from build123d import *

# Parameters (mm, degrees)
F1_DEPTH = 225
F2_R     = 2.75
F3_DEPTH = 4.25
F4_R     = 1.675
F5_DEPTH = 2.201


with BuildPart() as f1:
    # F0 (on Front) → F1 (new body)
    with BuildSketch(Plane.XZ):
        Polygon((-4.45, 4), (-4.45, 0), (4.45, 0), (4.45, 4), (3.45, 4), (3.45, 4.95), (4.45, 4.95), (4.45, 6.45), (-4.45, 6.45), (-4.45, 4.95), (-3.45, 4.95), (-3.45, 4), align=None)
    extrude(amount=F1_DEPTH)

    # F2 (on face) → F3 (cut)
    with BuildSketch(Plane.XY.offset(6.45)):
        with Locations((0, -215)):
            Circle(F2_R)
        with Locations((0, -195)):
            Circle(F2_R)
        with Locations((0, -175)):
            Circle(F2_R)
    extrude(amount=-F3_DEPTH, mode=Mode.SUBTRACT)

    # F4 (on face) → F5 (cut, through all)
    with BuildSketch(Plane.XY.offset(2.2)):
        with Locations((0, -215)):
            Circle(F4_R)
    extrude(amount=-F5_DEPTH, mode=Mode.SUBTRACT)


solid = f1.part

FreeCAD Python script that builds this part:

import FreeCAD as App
import Part
import Sketcher
from FreeCAD import Vector
Q = App.Units.Quantity


def add_polygon(sketch, points):
    """Adds a closed chain of lines whose ends are joined by coincident constraints."""
    first, n = sketch.GeometryCount, len(points)
    for a, b in zip(points, points[1:] + points[:1]):
        sketch.addGeometry(Part.LineSegment(App.Vector(*a, 0), App.Vector(*b, 0)), False)
    for i in range(n):
        sketch.addConstraint(Sketcher.Constraint("Coincident", first + i, 2, first + (i + 1) % n, 1))

doc = App.newDocument("Part")
body = doc.addObject("PartDesign::Body", "Body")

# Sketch on XZ plane
sketch1 = body.newObject("Sketcher::SketchObject", "Sketch")
sketch1.AttachmentSupport = (doc.getObject("XZ_Plane"), [""])
sketch1.MapMode = "FlatFace"
add_polygon(sketch1, [(-4.5, 4), (-4.5, 0), (4.5, 0), (4.5, 4), (3.5, 4), (3.5, 5), (4.5, 5), (4.5, 6.5), (-4.5, 6.5), (-4.5, 5), (-3.5, 5), (-3.5, 4)])  # lines 0-11
sketch1.addConstraint([
    Sketcher.Constraint("Vertical", 0),
    Sketcher.Constraint("Horizontal", 1),
    Sketcher.Constraint("Vertical", 2),
    Sketcher.Constraint("Horizontal", 3),
    Sketcher.Constraint("Vertical", 4),
    Sketcher.Constraint("Horizontal", 5),
    Sketcher.Constraint("Vertical", 6),
    Sketcher.Constraint("Horizontal", 7),
    Sketcher.Constraint("Vertical", 8),
    Sketcher.Constraint("Horizontal", 9),
    Sketcher.Constraint("Vertical", 10),
    Sketcher.Constraint("Horizontal", 11),
    Sketcher.Constraint("Symmetric", 0, 2, 1, 2, -1, 1),
    Sketcher.Constraint("Symmetric", 5, 2, 8, 2, -2),
    Sketcher.Constraint("Symmetric", 3, 2, 10, 2, -2),
    Sketcher.Constraint("Vertical", 2, 2, 5, 2),
    Sketcher.Constraint("DistanceX", 3, 2, 3, 1, Q("1 mm")),
    Sketcher.Constraint("DistanceY", 0, 2, 0, 1, Q("4 mm")),
    Sketcher.Constraint("DistanceX", 1, 1, 1, 2, Q("8.9 mm")),
    Sketcher.Constraint("DistanceY", 6, 1, 6, 2, Q("1.5 mm")),
    Sketcher.Constraint("DistanceY", 4, 1, 4, 2, Q("0.95 mm")),
])
pad1 = body.newObject("PartDesign::Pad", "Pad")
pad1.Profile = sketch1
pad1.Length = 225

# Sketch on XY plane
sketch2 = body.newObject("Sketcher::SketchObject", "Sketch001")
sketch2.AttachmentSupport = (doc.getObject("XY_Plane"), [""])
sketch2.MapMode = "FlatFace"
sketch2.AttachmentOffset = App.Placement(Vector(0, 0, 6.45), App.Rotation())
sketch2.addGeometry([
    Part.Circle(Vector(0, -215, 0), Vector(0, 0, 1), 2.8),
    Part.Circle(Vector(0, -195, 0), Vector(0, 0, 1), 2.8),
    Part.Circle(Vector(0, -175, 0), Vector(0, 0, 1), 2.8),
], False)
sketch2.addConstraint([
    Sketcher.Constraint("Equal", 0, 1),
    Sketcher.Constraint("Equal", 1, 2),
    Sketcher.Constraint("PointOnObject", 0, 3, -2),
    Sketcher.Constraint("PointOnObject", 1, 3, -2),
    Sketcher.Constraint("PointOnObject", 2, 3, -2),
    Sketcher.Constraint("Diameter", 0, Q("5.5 mm")),
    Sketcher.Constraint("DistanceY", 0, 3, -1, 1, Q("215 mm")),
    Sketcher.Constraint("DistanceY", 1, 3, -1, 1, Q("195 mm")),
    Sketcher.Constraint("DistanceY", 2, 3, -1, 1, Q("175 mm")),
])
pocket1 = body.newObject("PartDesign::Pocket", "Pocket")
pocket1.Profile = sketch2
pocket1.Length = 4.25

# Sketch on XY plane
sketch3 = body.newObject("Sketcher::SketchObject", "Sketch002")
sketch3.AttachmentSupport = (doc.getObject("XY_Plane"), [""])
sketch3.MapMode = "FlatFace"
sketch3.AttachmentOffset = App.Placement(Vector(0, 0, 2.2), App.Rotation())
sketch3.addGeometry(Part.Circle(Vector(0, -215, 0), Vector(0, 0, 1), 1.7), False)
sketch3.addConstraint([
    Sketcher.Constraint("PointOnObject", 0, 3, -2),
    Sketcher.Constraint("Diameter", 0, Q("3.35 mm")),
    Sketcher.Constraint("DistanceY", 0, 3, -1, 1, Q("215 mm")),
])
pocket2 = body.newObject("PartDesign::Pocket", "Pocket001")
pocket2.Profile = sketch3
pocket2.Type = "ThroughAll"

doc.recompute()
